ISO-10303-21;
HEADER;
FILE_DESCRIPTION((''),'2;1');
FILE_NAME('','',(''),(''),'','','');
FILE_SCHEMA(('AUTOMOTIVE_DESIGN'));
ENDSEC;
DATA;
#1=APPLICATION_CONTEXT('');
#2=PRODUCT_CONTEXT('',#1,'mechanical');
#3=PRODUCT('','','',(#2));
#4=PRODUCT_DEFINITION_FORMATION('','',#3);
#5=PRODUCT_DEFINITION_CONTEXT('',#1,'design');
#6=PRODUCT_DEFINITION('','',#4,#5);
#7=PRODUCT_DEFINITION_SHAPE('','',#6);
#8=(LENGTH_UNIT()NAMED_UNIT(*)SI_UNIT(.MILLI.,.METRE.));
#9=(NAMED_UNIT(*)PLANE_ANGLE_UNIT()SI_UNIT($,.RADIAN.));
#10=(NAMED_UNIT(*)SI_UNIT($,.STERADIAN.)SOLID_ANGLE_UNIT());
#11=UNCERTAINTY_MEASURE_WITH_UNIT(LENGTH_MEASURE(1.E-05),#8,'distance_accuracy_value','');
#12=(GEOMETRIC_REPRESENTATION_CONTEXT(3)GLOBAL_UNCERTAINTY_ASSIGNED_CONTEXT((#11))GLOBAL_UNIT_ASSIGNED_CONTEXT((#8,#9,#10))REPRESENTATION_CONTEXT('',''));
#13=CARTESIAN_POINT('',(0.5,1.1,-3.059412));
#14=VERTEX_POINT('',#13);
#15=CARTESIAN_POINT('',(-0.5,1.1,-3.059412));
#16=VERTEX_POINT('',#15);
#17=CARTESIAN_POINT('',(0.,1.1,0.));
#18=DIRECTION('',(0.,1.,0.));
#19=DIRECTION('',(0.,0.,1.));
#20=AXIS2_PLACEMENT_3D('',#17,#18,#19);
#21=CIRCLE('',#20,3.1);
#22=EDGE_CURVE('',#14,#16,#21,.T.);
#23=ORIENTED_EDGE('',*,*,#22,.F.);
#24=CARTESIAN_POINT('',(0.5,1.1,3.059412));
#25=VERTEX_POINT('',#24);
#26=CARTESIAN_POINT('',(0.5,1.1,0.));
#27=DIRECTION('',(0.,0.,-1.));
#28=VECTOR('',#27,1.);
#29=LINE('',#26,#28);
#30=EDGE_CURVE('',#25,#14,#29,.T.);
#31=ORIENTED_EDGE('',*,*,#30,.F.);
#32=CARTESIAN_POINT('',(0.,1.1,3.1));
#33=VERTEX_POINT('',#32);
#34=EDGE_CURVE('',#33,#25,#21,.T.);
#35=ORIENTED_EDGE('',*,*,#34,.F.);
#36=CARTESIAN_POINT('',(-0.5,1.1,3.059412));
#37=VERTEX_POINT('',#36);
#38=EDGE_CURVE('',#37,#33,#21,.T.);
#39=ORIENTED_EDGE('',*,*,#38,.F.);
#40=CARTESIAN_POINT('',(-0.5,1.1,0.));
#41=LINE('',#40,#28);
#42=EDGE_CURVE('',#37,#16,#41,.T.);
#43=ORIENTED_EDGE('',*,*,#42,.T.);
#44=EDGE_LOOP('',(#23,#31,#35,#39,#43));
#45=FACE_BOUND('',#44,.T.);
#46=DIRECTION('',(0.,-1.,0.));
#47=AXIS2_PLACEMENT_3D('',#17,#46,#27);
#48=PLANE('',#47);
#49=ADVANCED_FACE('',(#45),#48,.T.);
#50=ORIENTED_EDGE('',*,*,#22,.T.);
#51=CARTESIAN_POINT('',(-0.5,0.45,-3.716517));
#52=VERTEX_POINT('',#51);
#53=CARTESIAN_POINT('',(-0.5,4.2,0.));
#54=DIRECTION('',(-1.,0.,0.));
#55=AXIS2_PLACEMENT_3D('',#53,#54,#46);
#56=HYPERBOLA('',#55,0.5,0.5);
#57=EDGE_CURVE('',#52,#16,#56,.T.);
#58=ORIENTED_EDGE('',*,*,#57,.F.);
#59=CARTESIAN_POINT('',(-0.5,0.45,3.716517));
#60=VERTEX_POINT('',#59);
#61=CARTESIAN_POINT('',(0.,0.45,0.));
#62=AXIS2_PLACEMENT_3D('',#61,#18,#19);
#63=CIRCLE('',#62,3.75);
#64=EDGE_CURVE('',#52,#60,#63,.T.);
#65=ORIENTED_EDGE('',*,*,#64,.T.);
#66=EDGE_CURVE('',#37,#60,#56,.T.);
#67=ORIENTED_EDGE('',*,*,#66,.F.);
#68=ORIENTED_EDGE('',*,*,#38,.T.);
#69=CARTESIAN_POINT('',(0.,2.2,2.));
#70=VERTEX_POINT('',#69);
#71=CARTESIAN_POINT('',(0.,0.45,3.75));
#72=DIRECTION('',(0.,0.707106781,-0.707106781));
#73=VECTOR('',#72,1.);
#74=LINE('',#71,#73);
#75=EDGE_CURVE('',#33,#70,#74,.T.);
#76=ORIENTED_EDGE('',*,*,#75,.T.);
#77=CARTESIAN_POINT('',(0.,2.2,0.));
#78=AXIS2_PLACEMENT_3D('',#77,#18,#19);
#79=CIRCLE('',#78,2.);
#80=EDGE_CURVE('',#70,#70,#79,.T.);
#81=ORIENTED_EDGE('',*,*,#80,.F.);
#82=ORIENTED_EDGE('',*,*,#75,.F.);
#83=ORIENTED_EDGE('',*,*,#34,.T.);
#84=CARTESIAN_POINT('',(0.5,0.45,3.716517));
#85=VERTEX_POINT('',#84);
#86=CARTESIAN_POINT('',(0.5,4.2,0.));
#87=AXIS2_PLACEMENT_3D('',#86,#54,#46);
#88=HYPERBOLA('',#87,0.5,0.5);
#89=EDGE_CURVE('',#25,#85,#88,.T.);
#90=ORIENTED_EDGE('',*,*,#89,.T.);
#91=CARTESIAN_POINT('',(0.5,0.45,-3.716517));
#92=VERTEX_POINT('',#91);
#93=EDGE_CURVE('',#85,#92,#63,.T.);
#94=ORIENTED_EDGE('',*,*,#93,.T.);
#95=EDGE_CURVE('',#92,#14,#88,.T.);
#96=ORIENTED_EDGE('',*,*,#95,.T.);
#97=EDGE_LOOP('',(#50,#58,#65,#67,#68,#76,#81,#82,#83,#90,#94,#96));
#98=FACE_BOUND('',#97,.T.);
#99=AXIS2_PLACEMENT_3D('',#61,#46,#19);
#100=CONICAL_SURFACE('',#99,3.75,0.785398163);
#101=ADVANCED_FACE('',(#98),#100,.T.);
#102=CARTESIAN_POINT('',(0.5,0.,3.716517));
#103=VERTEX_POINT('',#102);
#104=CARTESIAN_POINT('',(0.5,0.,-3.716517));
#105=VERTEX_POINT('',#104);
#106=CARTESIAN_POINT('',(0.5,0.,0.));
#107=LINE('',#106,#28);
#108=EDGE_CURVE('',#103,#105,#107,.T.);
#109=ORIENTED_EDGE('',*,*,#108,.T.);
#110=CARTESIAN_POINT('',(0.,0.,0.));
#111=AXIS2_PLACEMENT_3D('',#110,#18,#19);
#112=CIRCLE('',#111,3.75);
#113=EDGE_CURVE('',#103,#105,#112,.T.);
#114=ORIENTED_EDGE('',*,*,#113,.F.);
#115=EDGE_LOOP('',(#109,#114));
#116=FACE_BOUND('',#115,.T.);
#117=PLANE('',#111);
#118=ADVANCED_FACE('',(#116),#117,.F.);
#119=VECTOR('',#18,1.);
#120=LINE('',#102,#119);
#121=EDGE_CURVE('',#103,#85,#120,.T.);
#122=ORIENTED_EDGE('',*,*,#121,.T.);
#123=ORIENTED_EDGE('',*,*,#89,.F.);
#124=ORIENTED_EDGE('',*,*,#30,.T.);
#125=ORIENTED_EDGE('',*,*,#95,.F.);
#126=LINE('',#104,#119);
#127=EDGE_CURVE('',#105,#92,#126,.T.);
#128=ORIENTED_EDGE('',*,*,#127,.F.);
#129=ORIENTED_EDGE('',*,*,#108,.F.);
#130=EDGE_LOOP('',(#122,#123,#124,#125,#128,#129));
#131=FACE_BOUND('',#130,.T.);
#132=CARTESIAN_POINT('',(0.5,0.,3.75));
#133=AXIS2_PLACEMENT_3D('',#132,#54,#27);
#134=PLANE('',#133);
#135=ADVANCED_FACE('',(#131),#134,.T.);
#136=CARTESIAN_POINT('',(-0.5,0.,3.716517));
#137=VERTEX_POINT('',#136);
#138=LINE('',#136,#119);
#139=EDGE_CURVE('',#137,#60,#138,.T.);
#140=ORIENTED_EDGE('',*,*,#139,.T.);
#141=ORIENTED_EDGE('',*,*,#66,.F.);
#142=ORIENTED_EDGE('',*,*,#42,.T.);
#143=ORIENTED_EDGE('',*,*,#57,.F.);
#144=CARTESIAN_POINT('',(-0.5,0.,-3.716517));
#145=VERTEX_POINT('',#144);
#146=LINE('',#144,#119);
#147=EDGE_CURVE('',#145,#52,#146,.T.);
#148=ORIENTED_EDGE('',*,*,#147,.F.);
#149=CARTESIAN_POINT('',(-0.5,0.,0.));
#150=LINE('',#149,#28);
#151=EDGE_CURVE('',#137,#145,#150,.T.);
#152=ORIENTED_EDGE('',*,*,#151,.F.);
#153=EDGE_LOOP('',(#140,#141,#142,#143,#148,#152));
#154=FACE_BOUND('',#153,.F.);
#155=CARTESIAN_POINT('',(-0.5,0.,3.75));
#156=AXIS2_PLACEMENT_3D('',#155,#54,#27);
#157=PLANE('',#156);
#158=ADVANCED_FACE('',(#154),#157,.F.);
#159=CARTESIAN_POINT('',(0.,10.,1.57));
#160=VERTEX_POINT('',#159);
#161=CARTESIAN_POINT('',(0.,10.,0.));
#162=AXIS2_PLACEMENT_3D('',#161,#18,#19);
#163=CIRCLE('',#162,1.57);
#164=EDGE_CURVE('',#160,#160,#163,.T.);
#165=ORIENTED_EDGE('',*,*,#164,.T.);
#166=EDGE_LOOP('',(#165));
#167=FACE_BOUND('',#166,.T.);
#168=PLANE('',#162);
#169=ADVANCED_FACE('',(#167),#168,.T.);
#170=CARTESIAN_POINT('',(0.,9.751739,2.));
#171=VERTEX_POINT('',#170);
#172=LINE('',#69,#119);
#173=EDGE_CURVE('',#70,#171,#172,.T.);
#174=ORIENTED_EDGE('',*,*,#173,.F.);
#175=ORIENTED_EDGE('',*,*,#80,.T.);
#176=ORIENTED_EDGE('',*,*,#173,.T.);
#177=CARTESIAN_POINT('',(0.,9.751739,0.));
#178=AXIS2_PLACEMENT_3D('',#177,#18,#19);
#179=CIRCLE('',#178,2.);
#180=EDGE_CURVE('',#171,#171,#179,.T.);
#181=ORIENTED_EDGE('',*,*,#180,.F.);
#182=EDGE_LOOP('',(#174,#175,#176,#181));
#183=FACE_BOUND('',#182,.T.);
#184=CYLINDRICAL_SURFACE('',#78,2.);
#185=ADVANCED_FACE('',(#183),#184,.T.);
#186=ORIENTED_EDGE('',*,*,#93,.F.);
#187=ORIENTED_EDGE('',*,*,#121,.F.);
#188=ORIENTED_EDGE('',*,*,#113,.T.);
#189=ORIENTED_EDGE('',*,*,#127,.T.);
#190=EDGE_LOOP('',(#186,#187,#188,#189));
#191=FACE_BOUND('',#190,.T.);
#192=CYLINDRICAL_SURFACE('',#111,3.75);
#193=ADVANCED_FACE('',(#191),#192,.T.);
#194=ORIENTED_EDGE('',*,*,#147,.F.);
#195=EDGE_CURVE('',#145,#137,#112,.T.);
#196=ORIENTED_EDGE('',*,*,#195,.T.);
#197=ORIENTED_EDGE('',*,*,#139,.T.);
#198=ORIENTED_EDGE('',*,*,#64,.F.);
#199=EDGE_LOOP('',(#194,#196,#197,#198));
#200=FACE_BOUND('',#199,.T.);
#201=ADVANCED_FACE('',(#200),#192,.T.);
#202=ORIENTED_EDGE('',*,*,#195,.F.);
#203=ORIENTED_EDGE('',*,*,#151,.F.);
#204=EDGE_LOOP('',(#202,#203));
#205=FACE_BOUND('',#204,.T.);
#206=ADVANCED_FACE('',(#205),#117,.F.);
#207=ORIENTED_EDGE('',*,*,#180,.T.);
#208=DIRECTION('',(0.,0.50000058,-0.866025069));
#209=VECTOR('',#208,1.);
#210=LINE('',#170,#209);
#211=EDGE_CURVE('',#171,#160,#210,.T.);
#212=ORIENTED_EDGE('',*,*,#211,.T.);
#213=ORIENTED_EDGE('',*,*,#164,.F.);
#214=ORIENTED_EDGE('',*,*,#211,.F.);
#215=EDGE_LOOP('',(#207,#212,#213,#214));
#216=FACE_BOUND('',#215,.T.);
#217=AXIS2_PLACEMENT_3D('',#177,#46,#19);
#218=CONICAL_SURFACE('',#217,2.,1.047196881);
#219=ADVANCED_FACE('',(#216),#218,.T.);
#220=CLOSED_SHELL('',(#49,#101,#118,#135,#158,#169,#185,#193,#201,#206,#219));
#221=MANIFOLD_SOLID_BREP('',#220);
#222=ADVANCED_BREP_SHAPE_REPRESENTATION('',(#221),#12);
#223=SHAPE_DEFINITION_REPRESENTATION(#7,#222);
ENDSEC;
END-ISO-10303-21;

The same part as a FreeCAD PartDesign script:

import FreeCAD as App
import Part
import Sketcher
from FreeCAD import Vector
Q = App.Units.Quantity


def add_polygon(sketch, points):
    """Adds a closed chain of lines whose ends are joined by coincident constraints."""
    first, n = sketch.GeometryCount, len(points)
    for a, b in zip(points, points[1:] + points[:1]):
        sketch.addGeometry(Part.LineSegment(App.Vector(*a, 0), App.Vector(*b, 0)), False)
    for i in range(n):
        sketch.addConstraint(Sketcher.Constraint("Coincident", first + i, 2, first + (i + 1) % n, 1))

doc = App.newDocument("Part")
params = doc.addObject("Spreadsheet::Sheet", "Params")
for row, (alias, value) in enumerate([
    ("sketch1_width", "10 mm"),
    ("sketch1_width2", "0.45 mm"),
    ("sketch1_height", "3.75 mm"),
    ("sketch1_height2", "1.57 mm"),
    ("revolution_angle", "360 deg"),
    ("sketch2_width", "1 mm"),
    ("sketch2_height", "7.5 mm"),
    ("pocket1_length", "1.1 mm"),
], start=1):
    params.set(f"A{row}", alias)
    params.set(f"B{row}", "=" + value)
    params.setAlias(f"B{row}", alias)

body = doc.addObject("PartDesign::Body", "Body")

sketch1 = body.newObject("Sketcher::SketchObject", "Sketch")
sketch1.AttachmentSupport = (doc.getObject("YZ_Plane"), [""])
sketch1.MapMode = "FlatFace"
add_polygon(sketch1, [(0, 3.75), (0, 0), (10, 0), (10, 1.57), (9.75, 2), (2.2, 2), (0.45, 3.75)])
sketch1.addConstraint(Sketcher.Constraint("Vertical", 0))
sketch1.addConstraint(Sketcher.Constraint("Horizontal", 1))
sketch1.addConstraint(Sketcher.Constraint("Vertical", 2))
sketch1.addConstraint(Sketcher.Constraint("Horizontal", 4))
sketch1.addConstraint(Sketcher.Constraint("Horizontal", 6))
sketch1.addConstraint(Sketcher.Constraint("Coincident", 0, 2, -1, 1))
sketch1.addConstraint(Sketcher.Constraint("DistanceX", 1, 1, 1, 2, 10.0))
sketch1.addConstraint(Sketcher.Constraint("Angle", 5, Q("135 deg")))
sketch1.addConstraint(Sketcher.Constraint("DistanceY", -1, 1, 3, 2, 2.0))
sketch1.addConstraint(Sketcher.Constraint("DistanceX", 6, 2, 6, 1, 0.45))
sketch1.addConstraint(Sketcher.Constraint("DistanceY", 0, 2, 0, 1, 3.75))
sketch1.addConstraint(Sketcher.Constraint("DistanceY", 2, 1, 2, 2, 1.57))
sketch1.addConstraint(Sketcher.Constraint("DistanceX", 4, 2, 4, 1, 7.551739))
sketch1.setExpression("Constraints[13]", "Params.sketch1_width")
sketch1.setExpression("Constraints[16]", "Params.sketch1_width2")
sketch1.setExpression("Constraints[17]", "Params.sketch1_height")
sketch1.setExpression("Constraints[18]", "Params.sketch1_height2")
revolution = body.newObject("PartDesign::Revolution", "Revolution")
revolution.Profile = sketch1
revolution.ReferenceAxis = (sketch1, ["H_Axis"])
revolution.setExpression("Angle", "Params.revolution_angle")

sketch2 = body.newObject("Sketcher::SketchObject", "Sketch001")
sketch2.AttachmentSupport = (doc.getObject("XZ_Plane"), [""])
sketch2.MapMode = "FlatFace"
add_polygon(sketch2, [(0.5, 3.8), (-0.5, 3.8), (-0.5, -3.8), (0.5, -3.8)])
sketch2.addConstraint(Sketcher.Constraint("Horizontal", 0))
sketch2.addConstraint(Sketcher.Constraint("Vertical", 1))
sketch2.addConstraint(Sketcher.Constraint("Horizontal", 2))
sketch2.addConstraint(Sketcher.Constraint("Vertical", 3))
sketch2.addConstraint(Sketcher.Constraint("Symmetric", 0, 2, 2, 2, -1, 1))
sketch2.addConstraint(Sketcher.Constraint("DistanceX", 0, 2, 0, 1, 1.0))
sketch2.addConstraint(Sketcher.Constraint("DistanceY", 1, 2, 1, 1, 7.5))
sketch2.setExpression("Constraints[9]", "Params.sketch2_width")
sketch2.setExpression("Constraints[10]", "Params.sketch2_height")
pocket1 = body.newObject("PartDesign::Pocket", "Pocket")
pocket1.Profile = sketch2
pocket1.setExpression("Length", "Params.pocket1_length")

doc.recompute()
